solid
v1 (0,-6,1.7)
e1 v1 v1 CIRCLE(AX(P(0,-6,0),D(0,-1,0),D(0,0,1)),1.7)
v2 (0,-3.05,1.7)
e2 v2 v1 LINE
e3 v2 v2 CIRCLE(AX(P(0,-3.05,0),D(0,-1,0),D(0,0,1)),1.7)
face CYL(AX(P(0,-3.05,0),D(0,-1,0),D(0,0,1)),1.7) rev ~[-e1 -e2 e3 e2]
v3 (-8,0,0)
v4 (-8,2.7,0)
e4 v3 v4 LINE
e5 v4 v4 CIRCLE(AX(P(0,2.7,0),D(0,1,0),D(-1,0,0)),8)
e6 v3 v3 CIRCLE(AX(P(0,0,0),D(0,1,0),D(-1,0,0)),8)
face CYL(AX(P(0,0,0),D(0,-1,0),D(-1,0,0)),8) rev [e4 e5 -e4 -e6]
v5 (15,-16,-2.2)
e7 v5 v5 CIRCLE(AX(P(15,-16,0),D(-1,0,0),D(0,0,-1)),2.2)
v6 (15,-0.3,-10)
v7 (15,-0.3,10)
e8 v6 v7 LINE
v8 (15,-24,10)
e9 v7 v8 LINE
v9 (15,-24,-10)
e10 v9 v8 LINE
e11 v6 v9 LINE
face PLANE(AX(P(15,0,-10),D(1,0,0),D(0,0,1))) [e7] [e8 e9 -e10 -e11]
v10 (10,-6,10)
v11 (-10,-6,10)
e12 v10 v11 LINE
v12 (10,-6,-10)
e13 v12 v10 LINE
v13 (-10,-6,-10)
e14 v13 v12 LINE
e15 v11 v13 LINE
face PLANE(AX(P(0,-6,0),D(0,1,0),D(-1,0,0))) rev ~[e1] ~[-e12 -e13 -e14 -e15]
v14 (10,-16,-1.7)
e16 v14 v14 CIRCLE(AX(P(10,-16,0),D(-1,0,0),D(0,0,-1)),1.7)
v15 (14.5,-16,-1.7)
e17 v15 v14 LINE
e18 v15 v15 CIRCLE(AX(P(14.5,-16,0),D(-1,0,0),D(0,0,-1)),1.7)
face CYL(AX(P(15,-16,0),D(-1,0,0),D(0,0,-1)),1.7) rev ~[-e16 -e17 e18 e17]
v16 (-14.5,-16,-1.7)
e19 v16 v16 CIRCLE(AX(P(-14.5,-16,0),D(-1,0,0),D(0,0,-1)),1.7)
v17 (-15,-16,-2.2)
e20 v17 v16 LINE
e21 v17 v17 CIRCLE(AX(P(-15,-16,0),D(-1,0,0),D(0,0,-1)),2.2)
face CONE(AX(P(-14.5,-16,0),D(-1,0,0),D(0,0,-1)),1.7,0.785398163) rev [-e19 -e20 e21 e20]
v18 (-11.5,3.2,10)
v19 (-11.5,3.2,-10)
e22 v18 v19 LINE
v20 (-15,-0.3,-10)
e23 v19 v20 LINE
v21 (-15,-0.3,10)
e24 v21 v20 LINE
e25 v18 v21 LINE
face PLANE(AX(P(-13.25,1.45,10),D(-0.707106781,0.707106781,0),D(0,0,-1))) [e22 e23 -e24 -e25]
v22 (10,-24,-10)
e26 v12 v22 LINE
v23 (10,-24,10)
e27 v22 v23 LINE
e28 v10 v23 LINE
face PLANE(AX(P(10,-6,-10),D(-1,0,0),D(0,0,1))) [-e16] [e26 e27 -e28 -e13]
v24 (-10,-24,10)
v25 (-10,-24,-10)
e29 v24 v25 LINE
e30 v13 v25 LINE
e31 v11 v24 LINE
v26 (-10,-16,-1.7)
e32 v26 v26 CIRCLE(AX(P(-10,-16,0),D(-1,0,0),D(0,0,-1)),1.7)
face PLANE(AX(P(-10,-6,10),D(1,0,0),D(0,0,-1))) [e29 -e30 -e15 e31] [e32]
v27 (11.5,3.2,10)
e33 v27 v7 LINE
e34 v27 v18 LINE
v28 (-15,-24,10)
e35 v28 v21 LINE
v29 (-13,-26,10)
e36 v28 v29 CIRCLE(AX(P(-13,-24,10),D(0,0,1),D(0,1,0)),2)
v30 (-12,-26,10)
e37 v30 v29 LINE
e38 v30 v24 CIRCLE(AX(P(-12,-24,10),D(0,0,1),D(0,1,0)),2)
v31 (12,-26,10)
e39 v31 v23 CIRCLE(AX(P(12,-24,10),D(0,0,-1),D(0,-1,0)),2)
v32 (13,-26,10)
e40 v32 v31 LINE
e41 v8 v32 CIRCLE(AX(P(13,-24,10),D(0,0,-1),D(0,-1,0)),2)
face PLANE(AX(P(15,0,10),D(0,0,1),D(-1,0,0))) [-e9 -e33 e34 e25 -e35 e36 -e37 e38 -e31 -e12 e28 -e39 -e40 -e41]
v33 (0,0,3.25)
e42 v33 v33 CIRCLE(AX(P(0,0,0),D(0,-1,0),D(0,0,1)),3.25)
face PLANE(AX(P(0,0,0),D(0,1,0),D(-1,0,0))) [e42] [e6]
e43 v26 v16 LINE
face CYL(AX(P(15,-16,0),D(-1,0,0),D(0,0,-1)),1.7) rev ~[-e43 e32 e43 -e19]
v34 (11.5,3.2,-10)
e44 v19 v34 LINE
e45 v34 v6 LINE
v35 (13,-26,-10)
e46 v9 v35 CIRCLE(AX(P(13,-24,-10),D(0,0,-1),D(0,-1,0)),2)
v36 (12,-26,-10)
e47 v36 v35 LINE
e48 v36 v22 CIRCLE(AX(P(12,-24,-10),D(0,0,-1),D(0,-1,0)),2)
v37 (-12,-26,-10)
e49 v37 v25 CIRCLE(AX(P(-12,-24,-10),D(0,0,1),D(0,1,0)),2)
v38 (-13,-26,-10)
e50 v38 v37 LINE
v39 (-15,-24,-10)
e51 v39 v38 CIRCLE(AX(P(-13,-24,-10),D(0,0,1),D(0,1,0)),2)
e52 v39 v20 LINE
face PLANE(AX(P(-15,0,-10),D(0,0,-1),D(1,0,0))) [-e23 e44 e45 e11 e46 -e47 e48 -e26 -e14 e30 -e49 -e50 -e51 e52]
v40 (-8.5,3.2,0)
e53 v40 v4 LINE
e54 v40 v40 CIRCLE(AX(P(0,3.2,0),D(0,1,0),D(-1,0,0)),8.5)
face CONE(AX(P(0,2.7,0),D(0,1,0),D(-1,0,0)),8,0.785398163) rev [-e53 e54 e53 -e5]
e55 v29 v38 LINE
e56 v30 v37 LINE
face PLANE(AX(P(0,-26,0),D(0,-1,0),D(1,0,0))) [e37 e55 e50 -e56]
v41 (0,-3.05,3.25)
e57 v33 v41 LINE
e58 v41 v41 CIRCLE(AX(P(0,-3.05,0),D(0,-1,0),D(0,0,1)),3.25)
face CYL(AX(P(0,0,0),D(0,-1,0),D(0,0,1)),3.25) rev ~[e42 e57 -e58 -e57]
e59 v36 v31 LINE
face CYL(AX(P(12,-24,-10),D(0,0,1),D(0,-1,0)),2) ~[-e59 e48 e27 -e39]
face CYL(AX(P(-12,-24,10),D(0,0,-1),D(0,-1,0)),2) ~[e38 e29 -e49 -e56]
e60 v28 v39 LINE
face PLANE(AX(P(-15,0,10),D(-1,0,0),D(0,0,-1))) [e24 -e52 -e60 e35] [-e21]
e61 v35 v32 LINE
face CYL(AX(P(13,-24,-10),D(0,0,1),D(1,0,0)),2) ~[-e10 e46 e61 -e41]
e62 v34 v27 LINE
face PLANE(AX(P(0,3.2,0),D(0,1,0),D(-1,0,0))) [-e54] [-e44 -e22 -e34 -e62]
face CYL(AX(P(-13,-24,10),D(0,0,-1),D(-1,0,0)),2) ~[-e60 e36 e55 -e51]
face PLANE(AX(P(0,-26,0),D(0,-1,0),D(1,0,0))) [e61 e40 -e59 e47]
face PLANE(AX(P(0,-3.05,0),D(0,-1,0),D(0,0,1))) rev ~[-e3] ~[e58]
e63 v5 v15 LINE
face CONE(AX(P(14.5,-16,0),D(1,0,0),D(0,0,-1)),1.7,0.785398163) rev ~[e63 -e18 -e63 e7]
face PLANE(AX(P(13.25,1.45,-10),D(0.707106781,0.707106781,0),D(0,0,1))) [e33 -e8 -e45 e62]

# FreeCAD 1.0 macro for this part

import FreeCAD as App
import Part
import Sketcher
from FreeCAD import Vector


def edges_at(feature, points):
    """Names of the edges that pass closest to the given points."""
    edges = feature.Shape.Edges
    near = lambda p: min(range(len(edges)), key=lambda i: edges[i].distToShape(Part.Vertex(*p))[0])
    return sorted({f"Edge{near(p) + 1}" for p in points})

doc = App.newDocument("Part")
body = doc.addObject("PartDesign::Body", "Body")

# Sketch on XZ plane
sketch1 = doc.addObject("Sketcher::SketchObject", "Sketch")
body.addObject(sketch1)
sketch1.AttachmentSupport = (doc.XZ_Plane, [""])
sketch1.MapMode = "FlatFace"
sketch1.addGeometry(Part.LineSegment(Vector(15, -10, 0), Vector(-15, -10, 0)), False)
sketch1.addGeometry(Part.LineSegment(Vector(-15, -10, 0), Vector(-15, 10, 0)), False)
sketch1.addGeometry(Part.LineSegment(Vector(-15, 10, 0), Vector(15, 10, 0)), False)
sketch1.addGeometry(Part.LineSegment(Vector(15, 10, 0), Vector(15, -10, 0)), False)
sketch1.addConstraint(Sketcher.Constraint("Coincident", 0, 2, 1, 1))
sketch1.addConstraint(Sketcher.Constraint("Coincident", 1, 2, 2, 1))
sketch1.addConstraint(Sketcher.Constraint("Coincident", 2, 2, 3, 1))
sketch1.addConstraint(Sketcher.Constraint("Coincident", 3, 2, 0, 1))
sketch1.addConstraint(Sketcher.Constraint("Horizontal", 0))
sketch1.addConstraint(Sketcher.Constraint("Vertical", 1))
sketch1.addConstraint(Sketcher.Constraint("Horizontal", 2))
sketch1.addConstraint(Sketcher.Constraint("Vertical", 3))
sketch1.addConstraint(Sketcher.Constraint("Symmetric", 0, 2, 2, 2, -1, 1))
sketch1.addConstraint(Sketcher.Constraint("DistanceX", 0, 2, 0, 1, 30.0))
sketch1.addConstraint(Sketcher.Constraint("DistanceY", 1, 1, 1, 2, 20.0))
pad1 = doc.addObject("PartDesign::Pad", "Pad")
body.addObject(pad1)
pad1.Profile = sketch1
pad1.Length = 6

# Sketch on XZ plane
sketch2 = doc.addObject("Sketcher::SketchObject", "Sketch001")
body.addObject(sketch2)
sketch2.AttachmentSupport = (doc.XZ_Plane, [""])
sketch2.MapMode = "FlatFace"
sketch2.addGeometry(Part.LineSegment(Vector(15, -10, 0), Vector(-15, -10, 0)), False)
sketch2.addGeometry(Part.LineSegment(Vector(-15, -10, 0), Vector(-15, 10, 0)), False)
sketch2.addGeometry(Part.LineSegment(Vector(-15, 10, 0), Vector(15, 10, 0)), False)
sketch2.addGeometry(Part.LineSegment(Vector(15, 10, 0), Vector(15, -10, 0)), False)
sketch2.addGeometry(Part.Circle(Vector(0, 0, 0), Vector(0, 0, 1), 8), False)
sketch2.addConstraint(Sketcher.Constraint("Coincident", 0, 2, 1, 1))
sketch2.addConstraint(Sketcher.Constraint("Coincident", 1, 2, 2, 1))
sketch2.addConstraint(Sketcher.Constraint("Coincident", 2, 2, 3, 1))
sketch2.addConstraint(Sketcher.Constraint("Coincident", 3, 2, 0, 1))
sketch2.addConstraint(Sketcher.Constraint("Horizontal", 0))
sketch2.addConstraint(Sketcher.Constraint("Vertical", 1))
sketch2.addConstraint(Sketcher.Constraint("Horizontal", 2))
sketch2.addConstraint(Sketcher.Constraint("Vertical", 3))
sketch2.addConstraint(Sketcher.Constraint("Coincident", 4, 3, -1, 1))
sketch2.addConstraint(Sketcher.Constraint("Symmetric", 0, 2, 2, 2, -1, 1))
sketch2.addConstraint(Sketcher.Constraint("Diameter", 4, 16.0))
sketch2.addConstraint(Sketcher.Constraint("DistanceX", 0, 2, 0, 1, 30.0))
sketch2.addConstraint(Sketcher.Constraint("DistanceY", 1, 1, 1, 2, 20.0))
pad2 = doc.addObject("PartDesign::Pad", "Pad001")
body.addObject(pad2)
pad2.Profile = sketch2
pad2.Length = 3.2
pad2.Reversed = True

# Sketch on XZ plane
sketch3 = doc.addObject("Sketcher::SketchObject", "Sketch002")
body.addObject(sketch3)
sketch3.AttachmentSupport = (doc.XZ_Plane, [""])
sketch3.MapMode = "FlatFace"
sketch3.addGeometry(Part.Circle(Vector(0, 0, 0), Vector(0, 0, 1), 1.7), False)
sketch3.addConstraint(Sketcher.Constraint("Coincident", 0, 3, -1, 1))
sketch3.addConstraint(Sketcher.Constraint("Diameter", 0, 3.4))
doc.recompute()
hole = doc.addObject("PartDesign::Hole", "Hole")
body.addObject(hole)
hole.Profile = sketch3
hole.ThreadType = "None"
hole.Diameter = 3.4
hole.DepthType = "Dimension"
hole.Depth = 10
hole.DrillPoint = "Flat"
hole.HoleCutType = "Counterbore"
hole.HoleCutDiameter = 6.5
hole.HoleCutDepth = 3.05
hole.Reversed = True

# Sketch on XZ plane
sketch4 = doc.addObject("Sketcher::SketchObject", "Sketch003")
body.addObject(sketch4)
sketch4.AttachmentSupport = (doc.XZ_Plane, [""])
sketch4.MapMode = "FlatFace"
sketch4.AttachmentOffset = App.Placement(Vector(0, 0, 6), App.Rotation())
sketch4.addGeometry(Part.LineSegment(Vector(15, -10, 0), Vector(15, 10, 0)), False)
sketch4.addGeometry(Part.LineSegment(Vector(15, 10, 0), Vector(10, 10, 0)), False)
sketch4.addGeometry(Part.LineSegment(Vector(10, 10, 0), Vector(10, -10, 0)), False)
sketch4.addGeometry(Part.LineSegment(Vector(10, -10, 0), Vector(15, -10, 0)), False)
sketch4.addGeometry(Part.LineSegment(Vector(-10, -10, 0), Vector(-10, 10, 0)), False)
sketch4.addGeometry(Part.LineSegment(Vector(-10, 10, 0), Vector(-15, 10, 0)), False)
sketch4.addGeometry(Part.LineSegment(Vector(-15, 10, 0), Vector(-15, -10, 0)), False)
sketch4.addGeometry(Part.LineSegment(Vector(-15, -10, 0), Vector(-10, -10, 0)), False)
sketch4.addConstraint(Sketcher.Constraint("Coincident", 0, 2, 1, 1))
sketch4.addConstraint(Sketcher.Constraint("Coincident", 1, 2, 2, 1))
sketch4.addConstraint(Sketcher.Constraint("Coincident", 2, 2, 3, 1))
sketch4.addConstraint(Sketcher.Constraint("Coincident", 3, 2, 0, 1))
sketch4.addConstraint(Sketcher.Constraint("Coincident", 4, 2, 5, 1))
sketch4.addConstraint(Sketcher.Constraint("Coincident", 5, 2, 6, 1))
sketch4.addConstraint(Sketcher.Constraint("Coincident", 6, 2, 7, 1))
sketch4.addConstraint(Sketcher.Constraint("Coincident", 7, 2, 4, 1))
sketch4.addConstraint(Sketcher.Constraint("Vertical", 0))
sketch4.addConstraint(Sketcher.Constraint("Horizontal", 1))
sketch4.addConstraint(Sketcher.Constraint("Vertical", 2))
sketch4.addConstraint(Sketcher.Constraint("Horizontal", 3))
sketch4.addConstraint(Sketcher.Constraint("Vertical", 4))
sketch4.addConstraint(Sketcher.Constraint("Horizontal", 5))
sketch4.addConstraint(Sketcher.Constraint("Vertical", 6))
sketch4.addConstraint(Sketcher.Constraint("Horizontal", 7))
sketch4.addConstraint(Sketcher.Constraint("Symmetric", 2, 2, 4, 2, -1, 1))
sketch4.addConstraint(Sketcher.Constraint("Symmetric", 0, 2, 6, 2, -1, 1))
sketch4.addConstraint(Sketcher.Constraint("Horizontal", 1, 2, 4, 2))
sketch4.addConstraint(Sketcher.Constraint("DistanceX", 1, 2, 1, 1, 5.0))
sketch4.addConstraint(Sketcher.Constraint("DistanceY", 0, 1, 0, 2, 20.0))
sketch4.addConstraint(Sketcher.Constraint("DistanceX", -1, 1, 0, 2, 15.0))
pad3 = doc.addObject("PartDesign::Pad", "Pad002")
body.addObject(pad3)
pad3.Profile = sketch4
pad3.Length = 20
doc.recompute()

chamfer = doc.addObject("PartDesign::Chamfer", "Chamfer")
body.addObject(chamfer)
chamfer.Base = (pad3, edges_at(pad3, [(15, 3.2, 0), (-15, 3.2, 0)]))
chamfer.Size = 3.5
doc.recompute()

fillet = doc.addObject("PartDesign::Fillet", "Fillet")
body.addObject(fillet)
fillet.Base = (chamfer, edges_at(chamfer, [
    (-15, -26, 0),
    (-10, -26, 0),
    (10, -26, 0),
    (15, -26, 0),
]))
fillet.Radius = 2

# Sketch on YZ plane
sketch5 = doc.addObject("Sketcher::SketchObject", "Sketch004")
body.addObject(sketch5)
sketch5.AttachmentSupport = (doc.YZ_Plane, [""])
sketch5.MapMode = "FlatFace"
sketch5.AttachmentOffset = App.Placement(Vector(0, 0, 15), App.Rotation())
sketch5.addGeometry(Part.Circle(Vector(-16, 0, 0), Vector(0, 0, 1), 1.7), False)
sketch5.addConstraint(Sketcher.Constraint("PointOnObject", 0, 3, -1))
sketch5.addConstraint(Sketcher.Constraint("Diameter", 0, 3.4))
sketch5.addConstraint(Sketcher.Constraint("DistanceX", 0, 3, -1, 1, 16.0))
doc.recompute()
hole2 = doc.addObject("PartDesign::Hole", "Hole001")
body.addObject(hole2)
hole2.Profile = sketch5
hole2.ThreadType = "None"
hole2.Diameter = 3.4
hole2.DepthType = "ThroughAll"
doc.recompute()

chamfer2 = doc.addObject("PartDesign::Chamfer", "Chamfer001")
body.addObject(chamfer2)
chamfer2.Base = (hole2, edges_at(hole2, [(8, 3.2, 0), (15, -16, 1.7), (-15, -16, 1.7)]))
chamfer2.Size = 0.5

doc.recompute()
